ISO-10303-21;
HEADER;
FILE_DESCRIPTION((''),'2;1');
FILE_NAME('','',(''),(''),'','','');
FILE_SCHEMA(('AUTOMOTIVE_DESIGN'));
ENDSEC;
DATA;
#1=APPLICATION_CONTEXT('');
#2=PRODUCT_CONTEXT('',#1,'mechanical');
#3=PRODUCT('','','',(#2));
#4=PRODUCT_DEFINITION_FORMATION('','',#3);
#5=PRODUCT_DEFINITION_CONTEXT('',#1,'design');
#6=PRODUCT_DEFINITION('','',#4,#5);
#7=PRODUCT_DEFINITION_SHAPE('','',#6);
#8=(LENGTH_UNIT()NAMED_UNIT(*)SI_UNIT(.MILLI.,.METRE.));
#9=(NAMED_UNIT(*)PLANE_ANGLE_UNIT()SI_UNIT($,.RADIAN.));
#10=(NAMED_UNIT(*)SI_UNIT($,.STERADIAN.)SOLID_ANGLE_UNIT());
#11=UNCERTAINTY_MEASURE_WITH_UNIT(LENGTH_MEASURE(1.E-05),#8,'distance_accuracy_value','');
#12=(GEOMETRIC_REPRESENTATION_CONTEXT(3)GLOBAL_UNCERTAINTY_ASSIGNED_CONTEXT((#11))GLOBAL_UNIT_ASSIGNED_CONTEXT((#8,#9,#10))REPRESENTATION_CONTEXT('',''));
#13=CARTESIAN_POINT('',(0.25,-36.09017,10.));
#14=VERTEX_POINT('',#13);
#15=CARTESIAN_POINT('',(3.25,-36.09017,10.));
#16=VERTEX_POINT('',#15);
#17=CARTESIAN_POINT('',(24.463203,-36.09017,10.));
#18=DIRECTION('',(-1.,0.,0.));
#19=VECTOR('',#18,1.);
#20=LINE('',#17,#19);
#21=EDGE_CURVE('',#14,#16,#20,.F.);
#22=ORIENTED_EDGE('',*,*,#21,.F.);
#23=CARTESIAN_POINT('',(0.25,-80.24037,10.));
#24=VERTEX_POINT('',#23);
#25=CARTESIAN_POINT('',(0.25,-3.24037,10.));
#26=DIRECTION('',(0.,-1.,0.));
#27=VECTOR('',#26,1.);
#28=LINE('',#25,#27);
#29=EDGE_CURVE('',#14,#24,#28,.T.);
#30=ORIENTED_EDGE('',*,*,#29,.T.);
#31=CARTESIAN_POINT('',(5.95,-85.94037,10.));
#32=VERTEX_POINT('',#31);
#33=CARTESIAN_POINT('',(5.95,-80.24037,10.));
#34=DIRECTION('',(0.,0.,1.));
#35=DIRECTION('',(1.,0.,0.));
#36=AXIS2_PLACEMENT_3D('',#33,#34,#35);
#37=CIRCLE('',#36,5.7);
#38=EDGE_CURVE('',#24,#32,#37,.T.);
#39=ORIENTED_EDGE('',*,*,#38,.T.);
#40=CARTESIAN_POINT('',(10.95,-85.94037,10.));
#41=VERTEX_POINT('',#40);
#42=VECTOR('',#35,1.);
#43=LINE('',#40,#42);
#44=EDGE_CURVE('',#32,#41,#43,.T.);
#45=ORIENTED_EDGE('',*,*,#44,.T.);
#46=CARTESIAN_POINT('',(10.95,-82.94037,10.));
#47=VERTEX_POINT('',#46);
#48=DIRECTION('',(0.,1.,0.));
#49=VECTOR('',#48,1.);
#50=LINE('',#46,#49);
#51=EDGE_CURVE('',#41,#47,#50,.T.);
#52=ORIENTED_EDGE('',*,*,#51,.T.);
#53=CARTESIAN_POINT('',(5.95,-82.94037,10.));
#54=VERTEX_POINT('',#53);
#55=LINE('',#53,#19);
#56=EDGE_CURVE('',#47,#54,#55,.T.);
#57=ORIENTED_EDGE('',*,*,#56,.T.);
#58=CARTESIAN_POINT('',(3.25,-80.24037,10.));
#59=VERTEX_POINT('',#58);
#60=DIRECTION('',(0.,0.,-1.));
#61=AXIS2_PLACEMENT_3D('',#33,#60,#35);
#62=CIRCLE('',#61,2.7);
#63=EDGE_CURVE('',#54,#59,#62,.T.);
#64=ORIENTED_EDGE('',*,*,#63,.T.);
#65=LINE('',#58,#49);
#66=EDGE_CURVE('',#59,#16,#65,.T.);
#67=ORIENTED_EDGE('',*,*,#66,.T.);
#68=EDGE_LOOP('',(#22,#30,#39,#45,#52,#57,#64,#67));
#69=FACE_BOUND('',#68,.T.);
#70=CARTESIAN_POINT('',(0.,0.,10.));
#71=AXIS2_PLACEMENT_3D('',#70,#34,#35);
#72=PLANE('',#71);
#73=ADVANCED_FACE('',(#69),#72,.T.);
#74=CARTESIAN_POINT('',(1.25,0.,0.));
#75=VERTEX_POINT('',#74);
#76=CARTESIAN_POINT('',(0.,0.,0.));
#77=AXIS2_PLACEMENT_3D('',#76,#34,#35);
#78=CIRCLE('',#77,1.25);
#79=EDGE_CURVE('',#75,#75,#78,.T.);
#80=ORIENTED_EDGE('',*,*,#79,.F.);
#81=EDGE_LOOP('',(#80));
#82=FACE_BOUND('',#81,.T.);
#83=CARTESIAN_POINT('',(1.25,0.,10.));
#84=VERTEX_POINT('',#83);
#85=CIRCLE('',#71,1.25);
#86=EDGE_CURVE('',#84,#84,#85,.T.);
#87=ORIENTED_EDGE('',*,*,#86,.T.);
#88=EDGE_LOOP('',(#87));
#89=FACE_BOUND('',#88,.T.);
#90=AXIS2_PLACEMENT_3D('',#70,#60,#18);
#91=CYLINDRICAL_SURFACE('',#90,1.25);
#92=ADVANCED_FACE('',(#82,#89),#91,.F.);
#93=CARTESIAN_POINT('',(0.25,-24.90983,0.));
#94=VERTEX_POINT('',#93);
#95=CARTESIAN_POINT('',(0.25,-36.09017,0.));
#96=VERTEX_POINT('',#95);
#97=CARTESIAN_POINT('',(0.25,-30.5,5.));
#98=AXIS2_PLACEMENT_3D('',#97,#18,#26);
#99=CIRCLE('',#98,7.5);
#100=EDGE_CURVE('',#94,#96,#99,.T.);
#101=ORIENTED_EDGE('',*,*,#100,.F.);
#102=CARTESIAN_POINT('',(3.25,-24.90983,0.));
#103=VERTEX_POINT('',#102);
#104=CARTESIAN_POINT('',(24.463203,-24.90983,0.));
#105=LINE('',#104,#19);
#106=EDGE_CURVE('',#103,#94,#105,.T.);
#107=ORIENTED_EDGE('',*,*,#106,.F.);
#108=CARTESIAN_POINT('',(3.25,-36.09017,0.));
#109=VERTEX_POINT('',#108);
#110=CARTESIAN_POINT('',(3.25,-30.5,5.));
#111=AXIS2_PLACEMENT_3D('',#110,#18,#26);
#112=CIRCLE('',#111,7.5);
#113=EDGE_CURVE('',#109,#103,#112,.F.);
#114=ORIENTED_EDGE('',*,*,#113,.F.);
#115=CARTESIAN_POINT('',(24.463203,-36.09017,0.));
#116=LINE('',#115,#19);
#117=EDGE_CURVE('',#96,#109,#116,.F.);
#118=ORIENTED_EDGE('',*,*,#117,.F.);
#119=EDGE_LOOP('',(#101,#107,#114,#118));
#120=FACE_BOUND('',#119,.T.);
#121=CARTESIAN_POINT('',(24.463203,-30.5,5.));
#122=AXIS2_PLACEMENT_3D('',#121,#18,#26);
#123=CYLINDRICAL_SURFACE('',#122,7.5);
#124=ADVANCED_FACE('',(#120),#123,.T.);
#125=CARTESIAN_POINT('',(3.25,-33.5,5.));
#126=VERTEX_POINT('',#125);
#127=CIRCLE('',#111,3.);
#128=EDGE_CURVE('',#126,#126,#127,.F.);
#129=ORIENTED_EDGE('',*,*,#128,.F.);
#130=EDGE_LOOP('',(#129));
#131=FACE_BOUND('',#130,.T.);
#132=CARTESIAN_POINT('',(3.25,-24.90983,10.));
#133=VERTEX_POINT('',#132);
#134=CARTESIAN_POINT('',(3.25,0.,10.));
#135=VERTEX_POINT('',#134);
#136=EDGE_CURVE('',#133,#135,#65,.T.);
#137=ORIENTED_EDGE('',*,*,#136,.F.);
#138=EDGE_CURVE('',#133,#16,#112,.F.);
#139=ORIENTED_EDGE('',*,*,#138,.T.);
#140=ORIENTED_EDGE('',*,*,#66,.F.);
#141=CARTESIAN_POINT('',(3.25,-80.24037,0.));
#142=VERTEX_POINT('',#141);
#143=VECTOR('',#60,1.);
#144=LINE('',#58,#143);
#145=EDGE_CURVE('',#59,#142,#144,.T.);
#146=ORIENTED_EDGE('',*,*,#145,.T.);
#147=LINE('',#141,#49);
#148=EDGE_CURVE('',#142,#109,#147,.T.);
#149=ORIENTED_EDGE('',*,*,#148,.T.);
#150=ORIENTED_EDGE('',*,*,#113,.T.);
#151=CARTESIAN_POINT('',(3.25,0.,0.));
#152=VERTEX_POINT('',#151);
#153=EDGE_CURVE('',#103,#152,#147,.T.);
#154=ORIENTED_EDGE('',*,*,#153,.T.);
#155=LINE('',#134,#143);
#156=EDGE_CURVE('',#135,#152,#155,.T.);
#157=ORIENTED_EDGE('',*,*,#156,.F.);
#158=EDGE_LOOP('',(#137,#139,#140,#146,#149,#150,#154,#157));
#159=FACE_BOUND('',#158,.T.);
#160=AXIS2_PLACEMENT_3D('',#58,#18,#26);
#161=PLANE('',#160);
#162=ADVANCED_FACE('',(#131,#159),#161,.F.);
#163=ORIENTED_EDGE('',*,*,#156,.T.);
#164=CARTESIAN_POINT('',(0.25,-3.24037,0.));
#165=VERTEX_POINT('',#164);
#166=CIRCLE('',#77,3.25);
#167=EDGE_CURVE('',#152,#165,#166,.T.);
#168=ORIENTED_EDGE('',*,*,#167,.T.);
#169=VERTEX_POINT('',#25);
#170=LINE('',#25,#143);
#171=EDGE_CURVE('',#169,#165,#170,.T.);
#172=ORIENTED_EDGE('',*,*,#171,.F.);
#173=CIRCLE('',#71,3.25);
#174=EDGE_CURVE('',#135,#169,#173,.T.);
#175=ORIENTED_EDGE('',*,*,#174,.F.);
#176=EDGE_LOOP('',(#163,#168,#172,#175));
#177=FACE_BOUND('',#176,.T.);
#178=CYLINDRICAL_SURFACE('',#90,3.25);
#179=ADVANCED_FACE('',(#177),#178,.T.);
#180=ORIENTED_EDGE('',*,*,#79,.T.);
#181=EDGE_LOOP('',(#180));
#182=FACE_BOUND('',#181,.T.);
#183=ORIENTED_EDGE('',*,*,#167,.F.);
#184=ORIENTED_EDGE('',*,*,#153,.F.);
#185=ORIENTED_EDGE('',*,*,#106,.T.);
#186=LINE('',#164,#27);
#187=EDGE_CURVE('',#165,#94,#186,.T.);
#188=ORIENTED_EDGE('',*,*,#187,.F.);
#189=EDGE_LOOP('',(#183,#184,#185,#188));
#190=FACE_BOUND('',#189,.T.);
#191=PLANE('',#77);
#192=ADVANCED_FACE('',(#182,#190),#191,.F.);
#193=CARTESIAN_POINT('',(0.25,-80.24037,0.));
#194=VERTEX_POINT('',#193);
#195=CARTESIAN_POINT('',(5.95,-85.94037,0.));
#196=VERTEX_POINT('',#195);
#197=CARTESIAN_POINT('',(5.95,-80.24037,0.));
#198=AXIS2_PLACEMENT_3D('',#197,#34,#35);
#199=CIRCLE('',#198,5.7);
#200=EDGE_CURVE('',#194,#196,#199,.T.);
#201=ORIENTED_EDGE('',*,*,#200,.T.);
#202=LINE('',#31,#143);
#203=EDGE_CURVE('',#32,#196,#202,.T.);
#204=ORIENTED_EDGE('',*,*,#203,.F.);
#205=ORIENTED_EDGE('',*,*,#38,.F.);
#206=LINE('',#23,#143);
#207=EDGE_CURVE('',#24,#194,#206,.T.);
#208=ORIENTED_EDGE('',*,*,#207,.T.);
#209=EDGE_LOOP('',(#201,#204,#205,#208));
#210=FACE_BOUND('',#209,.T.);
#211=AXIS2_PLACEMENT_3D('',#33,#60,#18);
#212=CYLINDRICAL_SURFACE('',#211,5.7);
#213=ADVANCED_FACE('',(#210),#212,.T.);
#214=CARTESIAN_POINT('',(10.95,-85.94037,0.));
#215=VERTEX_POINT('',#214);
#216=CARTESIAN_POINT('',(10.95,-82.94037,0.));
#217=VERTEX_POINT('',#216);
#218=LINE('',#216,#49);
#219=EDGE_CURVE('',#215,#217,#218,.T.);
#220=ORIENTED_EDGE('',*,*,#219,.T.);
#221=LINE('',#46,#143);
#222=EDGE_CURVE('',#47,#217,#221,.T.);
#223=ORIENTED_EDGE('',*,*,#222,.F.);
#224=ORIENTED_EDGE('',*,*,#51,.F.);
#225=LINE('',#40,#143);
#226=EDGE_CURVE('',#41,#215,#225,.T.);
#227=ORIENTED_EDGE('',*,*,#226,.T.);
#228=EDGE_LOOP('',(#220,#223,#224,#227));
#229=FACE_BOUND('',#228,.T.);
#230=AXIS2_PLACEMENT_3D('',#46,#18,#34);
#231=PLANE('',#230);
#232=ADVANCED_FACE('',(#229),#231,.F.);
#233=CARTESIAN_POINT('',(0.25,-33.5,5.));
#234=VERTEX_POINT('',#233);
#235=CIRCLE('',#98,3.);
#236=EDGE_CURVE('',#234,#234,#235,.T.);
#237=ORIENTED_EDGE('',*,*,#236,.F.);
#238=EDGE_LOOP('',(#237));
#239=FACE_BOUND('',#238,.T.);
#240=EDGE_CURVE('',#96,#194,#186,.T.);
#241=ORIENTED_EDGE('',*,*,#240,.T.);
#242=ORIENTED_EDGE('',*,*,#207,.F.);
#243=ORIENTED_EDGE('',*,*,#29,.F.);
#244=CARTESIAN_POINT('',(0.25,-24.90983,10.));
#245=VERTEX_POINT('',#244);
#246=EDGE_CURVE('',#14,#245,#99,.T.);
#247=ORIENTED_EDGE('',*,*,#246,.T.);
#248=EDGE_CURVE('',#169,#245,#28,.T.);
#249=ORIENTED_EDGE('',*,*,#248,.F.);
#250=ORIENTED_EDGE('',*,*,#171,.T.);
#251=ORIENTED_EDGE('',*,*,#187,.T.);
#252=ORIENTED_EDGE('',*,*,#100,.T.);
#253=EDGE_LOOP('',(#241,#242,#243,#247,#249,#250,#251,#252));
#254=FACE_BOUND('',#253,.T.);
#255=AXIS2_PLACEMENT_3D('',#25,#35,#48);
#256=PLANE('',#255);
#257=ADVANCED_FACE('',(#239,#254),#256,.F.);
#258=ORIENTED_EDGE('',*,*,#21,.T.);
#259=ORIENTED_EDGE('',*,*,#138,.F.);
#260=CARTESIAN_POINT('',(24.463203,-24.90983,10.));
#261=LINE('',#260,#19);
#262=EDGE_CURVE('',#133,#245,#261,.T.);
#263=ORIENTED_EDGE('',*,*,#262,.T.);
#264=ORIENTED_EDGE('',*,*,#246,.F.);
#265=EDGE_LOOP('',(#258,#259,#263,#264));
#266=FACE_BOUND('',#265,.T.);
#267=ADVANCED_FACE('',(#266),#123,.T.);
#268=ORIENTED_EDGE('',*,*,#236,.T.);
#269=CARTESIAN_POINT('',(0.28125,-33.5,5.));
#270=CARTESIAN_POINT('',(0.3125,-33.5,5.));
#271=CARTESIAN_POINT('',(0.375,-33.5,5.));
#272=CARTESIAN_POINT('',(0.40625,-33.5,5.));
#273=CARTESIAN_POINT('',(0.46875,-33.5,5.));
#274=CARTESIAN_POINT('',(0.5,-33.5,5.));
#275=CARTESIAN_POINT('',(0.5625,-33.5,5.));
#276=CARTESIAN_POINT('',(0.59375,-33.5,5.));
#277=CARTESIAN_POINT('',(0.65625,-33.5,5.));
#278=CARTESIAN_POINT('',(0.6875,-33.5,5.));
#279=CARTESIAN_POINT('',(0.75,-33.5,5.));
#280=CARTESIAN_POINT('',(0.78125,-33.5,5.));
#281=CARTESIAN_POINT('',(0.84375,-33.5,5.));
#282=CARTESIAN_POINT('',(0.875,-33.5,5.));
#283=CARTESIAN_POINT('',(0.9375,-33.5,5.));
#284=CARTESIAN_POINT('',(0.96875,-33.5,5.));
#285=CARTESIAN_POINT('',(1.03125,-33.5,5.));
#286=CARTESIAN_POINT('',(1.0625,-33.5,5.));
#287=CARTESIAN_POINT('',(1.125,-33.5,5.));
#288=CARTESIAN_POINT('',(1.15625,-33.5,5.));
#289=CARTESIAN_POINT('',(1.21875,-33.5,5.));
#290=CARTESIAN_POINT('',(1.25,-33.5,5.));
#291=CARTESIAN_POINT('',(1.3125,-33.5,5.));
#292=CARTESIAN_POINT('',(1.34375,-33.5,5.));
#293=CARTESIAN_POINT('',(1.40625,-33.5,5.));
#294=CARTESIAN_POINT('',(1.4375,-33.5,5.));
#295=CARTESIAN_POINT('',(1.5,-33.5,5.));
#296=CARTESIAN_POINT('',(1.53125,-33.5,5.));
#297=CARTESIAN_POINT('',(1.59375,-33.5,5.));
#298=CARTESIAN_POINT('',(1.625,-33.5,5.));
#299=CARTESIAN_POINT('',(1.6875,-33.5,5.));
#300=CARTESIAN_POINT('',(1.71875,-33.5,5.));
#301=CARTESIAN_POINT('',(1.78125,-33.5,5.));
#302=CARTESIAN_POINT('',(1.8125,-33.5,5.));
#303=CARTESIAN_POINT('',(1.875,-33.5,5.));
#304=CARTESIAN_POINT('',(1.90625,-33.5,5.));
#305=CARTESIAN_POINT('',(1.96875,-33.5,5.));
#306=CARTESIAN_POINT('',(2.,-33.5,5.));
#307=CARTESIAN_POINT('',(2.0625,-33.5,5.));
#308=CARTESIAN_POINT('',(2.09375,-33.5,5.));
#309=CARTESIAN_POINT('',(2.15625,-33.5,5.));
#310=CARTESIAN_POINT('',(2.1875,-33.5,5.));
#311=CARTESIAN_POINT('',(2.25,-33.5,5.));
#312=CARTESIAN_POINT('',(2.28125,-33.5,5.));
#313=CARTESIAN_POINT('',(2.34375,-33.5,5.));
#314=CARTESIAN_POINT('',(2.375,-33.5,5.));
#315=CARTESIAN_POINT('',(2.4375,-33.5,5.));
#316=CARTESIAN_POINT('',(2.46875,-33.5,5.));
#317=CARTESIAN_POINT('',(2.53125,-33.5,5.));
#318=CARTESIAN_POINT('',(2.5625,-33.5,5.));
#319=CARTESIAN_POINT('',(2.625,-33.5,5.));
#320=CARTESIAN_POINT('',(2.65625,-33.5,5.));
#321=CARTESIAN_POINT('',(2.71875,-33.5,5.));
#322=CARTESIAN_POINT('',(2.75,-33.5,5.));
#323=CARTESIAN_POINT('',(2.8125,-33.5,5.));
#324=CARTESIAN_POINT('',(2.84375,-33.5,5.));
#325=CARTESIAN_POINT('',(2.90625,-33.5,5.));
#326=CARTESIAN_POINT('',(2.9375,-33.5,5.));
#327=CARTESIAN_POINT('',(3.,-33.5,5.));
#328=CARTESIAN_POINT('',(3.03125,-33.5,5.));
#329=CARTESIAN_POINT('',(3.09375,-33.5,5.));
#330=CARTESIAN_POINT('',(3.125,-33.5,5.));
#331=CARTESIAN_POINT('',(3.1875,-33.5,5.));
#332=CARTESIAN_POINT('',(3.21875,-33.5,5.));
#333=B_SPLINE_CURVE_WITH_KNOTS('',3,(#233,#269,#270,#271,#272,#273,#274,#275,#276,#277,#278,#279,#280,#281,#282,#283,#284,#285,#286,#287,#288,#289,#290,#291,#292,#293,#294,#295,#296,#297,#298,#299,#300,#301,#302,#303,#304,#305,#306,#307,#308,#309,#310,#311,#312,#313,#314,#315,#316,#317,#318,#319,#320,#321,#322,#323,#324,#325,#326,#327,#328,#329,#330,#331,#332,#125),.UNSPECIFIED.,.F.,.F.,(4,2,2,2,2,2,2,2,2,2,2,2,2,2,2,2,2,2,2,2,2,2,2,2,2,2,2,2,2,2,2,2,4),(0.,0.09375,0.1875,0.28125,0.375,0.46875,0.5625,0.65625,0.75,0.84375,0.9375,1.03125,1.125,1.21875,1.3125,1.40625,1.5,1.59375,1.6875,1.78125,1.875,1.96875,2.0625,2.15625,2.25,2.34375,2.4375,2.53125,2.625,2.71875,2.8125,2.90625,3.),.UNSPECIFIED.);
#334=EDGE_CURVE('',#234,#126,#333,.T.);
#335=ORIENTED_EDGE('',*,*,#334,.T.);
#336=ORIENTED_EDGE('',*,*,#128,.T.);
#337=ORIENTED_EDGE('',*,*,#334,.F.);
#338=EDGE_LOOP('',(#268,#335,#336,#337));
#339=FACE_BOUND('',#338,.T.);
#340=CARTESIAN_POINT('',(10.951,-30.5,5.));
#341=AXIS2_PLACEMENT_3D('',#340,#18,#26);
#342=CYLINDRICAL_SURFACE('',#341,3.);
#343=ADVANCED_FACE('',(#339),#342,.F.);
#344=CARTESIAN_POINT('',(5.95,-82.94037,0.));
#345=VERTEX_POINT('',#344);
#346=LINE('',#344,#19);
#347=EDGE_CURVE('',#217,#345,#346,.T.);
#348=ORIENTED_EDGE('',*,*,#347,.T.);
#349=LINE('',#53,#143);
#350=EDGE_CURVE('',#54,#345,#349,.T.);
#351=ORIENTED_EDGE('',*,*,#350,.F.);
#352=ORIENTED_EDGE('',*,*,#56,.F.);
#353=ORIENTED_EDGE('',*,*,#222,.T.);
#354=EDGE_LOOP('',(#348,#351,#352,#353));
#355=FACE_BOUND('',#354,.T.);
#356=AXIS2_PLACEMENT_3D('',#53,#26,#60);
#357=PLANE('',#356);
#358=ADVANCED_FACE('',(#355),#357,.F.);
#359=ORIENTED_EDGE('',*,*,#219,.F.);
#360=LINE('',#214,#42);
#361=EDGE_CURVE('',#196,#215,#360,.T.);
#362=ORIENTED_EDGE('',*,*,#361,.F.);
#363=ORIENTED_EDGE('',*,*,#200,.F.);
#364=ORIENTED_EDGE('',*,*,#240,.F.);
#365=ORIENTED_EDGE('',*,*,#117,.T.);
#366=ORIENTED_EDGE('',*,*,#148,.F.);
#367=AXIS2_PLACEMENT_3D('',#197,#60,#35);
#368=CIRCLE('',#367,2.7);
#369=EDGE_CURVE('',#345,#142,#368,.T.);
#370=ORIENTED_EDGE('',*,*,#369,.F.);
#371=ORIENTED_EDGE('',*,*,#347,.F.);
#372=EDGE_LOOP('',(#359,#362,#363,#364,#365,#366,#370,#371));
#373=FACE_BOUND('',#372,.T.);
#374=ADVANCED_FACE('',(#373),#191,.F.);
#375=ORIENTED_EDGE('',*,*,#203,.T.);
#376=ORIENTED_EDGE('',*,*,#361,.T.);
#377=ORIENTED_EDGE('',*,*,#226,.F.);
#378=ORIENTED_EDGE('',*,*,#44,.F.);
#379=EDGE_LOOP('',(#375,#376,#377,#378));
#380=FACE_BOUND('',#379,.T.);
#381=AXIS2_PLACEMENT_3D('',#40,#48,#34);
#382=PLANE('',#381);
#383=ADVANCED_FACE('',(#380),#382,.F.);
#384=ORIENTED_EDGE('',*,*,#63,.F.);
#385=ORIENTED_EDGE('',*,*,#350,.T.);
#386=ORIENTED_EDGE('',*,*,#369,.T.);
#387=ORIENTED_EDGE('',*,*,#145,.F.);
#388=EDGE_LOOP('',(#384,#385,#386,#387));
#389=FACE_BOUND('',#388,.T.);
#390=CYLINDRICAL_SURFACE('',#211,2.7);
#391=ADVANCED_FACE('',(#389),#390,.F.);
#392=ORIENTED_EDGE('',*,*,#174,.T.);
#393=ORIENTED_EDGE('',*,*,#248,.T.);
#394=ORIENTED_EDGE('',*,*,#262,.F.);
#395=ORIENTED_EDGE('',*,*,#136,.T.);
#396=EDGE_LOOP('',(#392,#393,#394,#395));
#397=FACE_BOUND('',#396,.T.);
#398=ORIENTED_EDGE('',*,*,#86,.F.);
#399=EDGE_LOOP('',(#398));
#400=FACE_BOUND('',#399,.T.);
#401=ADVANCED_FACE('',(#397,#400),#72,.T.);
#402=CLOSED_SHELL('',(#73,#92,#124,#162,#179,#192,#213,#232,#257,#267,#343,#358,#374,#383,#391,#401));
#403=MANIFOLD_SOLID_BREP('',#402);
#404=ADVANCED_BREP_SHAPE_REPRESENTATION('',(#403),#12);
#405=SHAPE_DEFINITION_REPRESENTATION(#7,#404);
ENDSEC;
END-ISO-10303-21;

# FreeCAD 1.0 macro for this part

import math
import FreeCAD as App
import Part
import Sketcher
from FreeCAD import Vector

doc = App.newDocument("Part")
body = doc.addObject("PartDesign::Body", "Body")

sketch1 = doc.addObject("Sketcher::SketchObject", "Sketch")
body.addObject(sketch1)
sketch1.AttachmentSupport = (doc.XY_Plane, [""])
sketch1.MapMode = "FlatFace"
sketch1.addGeometry([
    Part.LineSegment(Vector(0.2, -3.2, 0), Vector(0.2, -80.2, 0)),
    Part.ArcOfCircle(Part.Circle(Vector(5.9, -80.2, 0), Vector(0, 0, 1), 5.7), math.radians(180), math.radians(270)),
    Part.LineSegment(Vector(6, -85.9, 0), Vector(10.9, -85.9, 0)),
    Part.LineSegment(Vector(10.9, -85.9, 0), Vector(10.9, -82.9, 0)),
    Part.LineSegment(Vector(10.9, -82.9, 0), Vector(6, -82.9, 0)),
    Part.ArcOfCircle(Part.Circle(Vector(6, -80.2, 0), Vector(0, 0, 1), 2.7), math.radians(-180), math.radians(-90)),
    Part.LineSegment(Vector(3.2, -80.2, 0), Vector(3.2, 0, 0)),
    Part.ArcOfCircle(Part.Circle(Vector(0, 0, 0), Vector(0, 0, 1), 3.2), math.radians(0), math.radians(274)),
    Part.Circle(Vector(0, 0, 0), Vector(0, 0, 1), 1.2),
], False)
sketch1.addConstraint([
    Sketcher.Constraint("Tangent", 0, 2, 1, 1),
    Sketcher.Constraint("Tangent", 1, 2, 2, 1),
    Sketcher.Constraint("Coincident", 2, 2, 3, 1),
    Sketcher.Constraint("Coincident", 3, 2, 4, 1),
    Sketcher.Constraint("Tangent", 4, 2, 5, 2),
    Sketcher.Constraint("Tangent", 5, 1, 6, 1),
    Sketcher.Constraint("Tangent", 6, 2, 7, 1),
    Sketcher.Constraint("Coincident", 7, 2, 0, 1),
    Sketcher.Constraint("Vertical", 0),
    Sketcher.Constraint("Horizontal", 2),
    Sketcher.Constraint("Vertical", 3),
    Sketcher.Constraint("Horizontal", 4),
    Sketcher.Constraint("Vertical", 6),
    Sketcher.Constraint("Coincident", 7, 3, -1, 1),
    Sketcher.Constraint("Coincident", 8, 3, -1, 1),
    Sketcher.Constraint("Coincident", 5, 3, 1, 3),
    Sketcher.Constraint("Diameter", 8, 2.5),
    Sketcher.Constraint("Radius", 1, 5.7),
    Sketcher.Constraint("Radius", 5, 2.7),
    Sketcher.Constraint("DistanceX", 2, 1, 2, 2, 5.0),
    Sketcher.Constraint("DistanceY", 0, 2, 0, 1, 77.0),
    Sketcher.Constraint("Radius", 7, 3.25),
])
pad1 = doc.addObject("PartDesign::Pad", "Pad")
body.addObject(pad1)
pad1.Profile = sketch1
pad1.Length = 10

sketch2 = doc.addObject("Sketcher::SketchObject", "Sketch001")
body.addObject(sketch2)
sketch2.AttachmentSupport = (doc.YZ_Plane, [""])
sketch2.MapMode = "FlatFace"
sketch2.AttachmentOffset = App.Placement(Vector(0, 0, 0.25), App.Rotation())
sketch2.addGeometry(Part.Circle(Vector(-30.5, 5, 0), Vector(0, 0, 1), 3), False)
sketch2.addConstraint([
    Sketcher.Constraint("Diameter", 0, 6.0),
    Sketcher.Constraint("DistanceY", -1, 1, 0, 3, 5.0),
    Sketcher.Constraint("DistanceX", 0, 3, -1, 1, 30.5),
])
pocket1 = doc.addObject("PartDesign::Pocket", "Pocket")
body.addObject(pocket1)
pocket1.Profile = sketch2
pocket1.Type = "UpToFirst"
pocket1.Reversed = True

sketch3 = doc.addObject("Sketcher::SketchObject", "Sketch002")
body.addObject(sketch3)
sketch3.AttachmentSupport = (doc.YZ_Plane, [""])
sketch3.MapMode = "FlatFace"
sketch3.AttachmentOffset = App.Placement(Vector(0, 0, 0.25), App.Rotation())
sketch3.addGeometry([
    Part.Circle(Vector(-30.5, 5, 0), Vector(0, 0, 1), 7.5),
    Part.Circle(Vector(-30.5, 5, 0), Vector(0, 0, 1), 3),
], False)
sketch3.addConstraint([
    Sketcher.Constraint("Coincident", 1, 3, 0, 3),
    Sketcher.Constraint("Diameter", 0, 15.0),
    Sketcher.Constraint("Diameter", 1, 6.0),
    Sketcher.Constraint("DistanceY", -1, 1, 0, 3, 5.0),
    Sketcher.Constraint("DistanceX", 0, 3, -1, 1, 30.5),
])
pad2 = doc.addObject("PartDesign::Pad", "Pad001")
body.addObject(pad2)
pad2.Profile = sketch3
pad2.Length = 3

doc.recompute()
